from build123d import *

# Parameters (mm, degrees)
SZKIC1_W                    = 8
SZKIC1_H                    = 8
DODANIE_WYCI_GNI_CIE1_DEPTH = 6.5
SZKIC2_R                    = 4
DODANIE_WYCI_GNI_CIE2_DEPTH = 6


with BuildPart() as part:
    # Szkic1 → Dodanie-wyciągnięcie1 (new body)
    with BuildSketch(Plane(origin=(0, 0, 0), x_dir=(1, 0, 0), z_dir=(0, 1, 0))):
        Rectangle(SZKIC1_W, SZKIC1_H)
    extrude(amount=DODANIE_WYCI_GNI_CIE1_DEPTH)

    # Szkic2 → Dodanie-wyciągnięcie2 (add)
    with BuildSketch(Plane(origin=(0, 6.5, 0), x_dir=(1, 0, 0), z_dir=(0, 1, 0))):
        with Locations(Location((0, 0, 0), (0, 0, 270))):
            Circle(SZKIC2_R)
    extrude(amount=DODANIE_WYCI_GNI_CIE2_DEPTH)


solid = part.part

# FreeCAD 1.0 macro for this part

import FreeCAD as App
import Part
import Sketcher
from FreeCAD import Vector
Q = App.Units.Quantity


def add_polygon(sketch, points):
    """Adds a closed chain of lines whose ends are joined by coincident constraints."""
    first, n = sketch.GeometryCount, len(points)
    for a, b in zip(points, points[1:] + points[:1]):
        sketch.addGeometry(Part.LineSegment(App.Vector(*a, 0), App.Vector(*b, 0)), False)
    for i in range(n):
        sketch.addConstraint(Sketcher.Constraint("Coincident", first + i, 2, first + (i + 1) % n, 1))

doc = App.newDocument("Part")
body = doc.addObject("PartDesign::Body", "Body")

# Sketch on XZ plane
sketch1 = body.newObject("Sketcher::SketchObject", "Sketch")
sketch1.AttachmentSupport = (doc.getObject("XZ_Plane"), [""])
sketch1.MapMode = "FlatFace"
add_polygon(sketch1, [(-4, -4), (-4, 4), (4, 4), (4, -4)])  # lines 0-3
sketch1.addConstraint([
    Sketcher.Constraint("Vertical", 0),
    Sketcher.Constraint("Horizontal", 1),
    Sketcher.Constraint("Vertical", 2),
    Sketcher.Constraint("Horizontal", 3),
    Sketcher.Constraint("Symmetric", 0, 2, 2, 2, -1, 1),
    Sketcher.Constraint("Equal", 3, 0),
    Sketcher.Constraint("DistanceX", 1, 1, 1, 2, Q("8 mm")),
])
pad1 = body.newObject("PartDesign::Pad", "Pad")
pad1.Profile = sketch1
pad1.Length = 6.5
pad1.Reversed = True

# Sketch on XZ plane
sketch2 = body.newObject("Sketcher::SketchObject", "Sketch001")
sketch2.AttachmentSupport = (doc.getObject("XZ_Plane"), [""])
sketch2.MapMode = "FlatFace"
sketch2.AttachmentOffset = App.Placement(Vector(0, 0, -6.5), App.Rotation())
sketch2.addGeometry(Part.Circle(Vector(0, 0, 0), Vector(0, 0, 1), 4), False)
sketch2.addConstraint([
    Sketcher.Constraint("Coincident", 0, 3, -1, 1),
    Sketcher.Constraint("Diameter", 0, Q("8 mm")),
])
pad2 = body.newObject("PartDesign::Pad", "Pad001")
pad2.Profile = sketch2
pad2.Length = 6
pad2.Reversed = True

doc.recompute()
